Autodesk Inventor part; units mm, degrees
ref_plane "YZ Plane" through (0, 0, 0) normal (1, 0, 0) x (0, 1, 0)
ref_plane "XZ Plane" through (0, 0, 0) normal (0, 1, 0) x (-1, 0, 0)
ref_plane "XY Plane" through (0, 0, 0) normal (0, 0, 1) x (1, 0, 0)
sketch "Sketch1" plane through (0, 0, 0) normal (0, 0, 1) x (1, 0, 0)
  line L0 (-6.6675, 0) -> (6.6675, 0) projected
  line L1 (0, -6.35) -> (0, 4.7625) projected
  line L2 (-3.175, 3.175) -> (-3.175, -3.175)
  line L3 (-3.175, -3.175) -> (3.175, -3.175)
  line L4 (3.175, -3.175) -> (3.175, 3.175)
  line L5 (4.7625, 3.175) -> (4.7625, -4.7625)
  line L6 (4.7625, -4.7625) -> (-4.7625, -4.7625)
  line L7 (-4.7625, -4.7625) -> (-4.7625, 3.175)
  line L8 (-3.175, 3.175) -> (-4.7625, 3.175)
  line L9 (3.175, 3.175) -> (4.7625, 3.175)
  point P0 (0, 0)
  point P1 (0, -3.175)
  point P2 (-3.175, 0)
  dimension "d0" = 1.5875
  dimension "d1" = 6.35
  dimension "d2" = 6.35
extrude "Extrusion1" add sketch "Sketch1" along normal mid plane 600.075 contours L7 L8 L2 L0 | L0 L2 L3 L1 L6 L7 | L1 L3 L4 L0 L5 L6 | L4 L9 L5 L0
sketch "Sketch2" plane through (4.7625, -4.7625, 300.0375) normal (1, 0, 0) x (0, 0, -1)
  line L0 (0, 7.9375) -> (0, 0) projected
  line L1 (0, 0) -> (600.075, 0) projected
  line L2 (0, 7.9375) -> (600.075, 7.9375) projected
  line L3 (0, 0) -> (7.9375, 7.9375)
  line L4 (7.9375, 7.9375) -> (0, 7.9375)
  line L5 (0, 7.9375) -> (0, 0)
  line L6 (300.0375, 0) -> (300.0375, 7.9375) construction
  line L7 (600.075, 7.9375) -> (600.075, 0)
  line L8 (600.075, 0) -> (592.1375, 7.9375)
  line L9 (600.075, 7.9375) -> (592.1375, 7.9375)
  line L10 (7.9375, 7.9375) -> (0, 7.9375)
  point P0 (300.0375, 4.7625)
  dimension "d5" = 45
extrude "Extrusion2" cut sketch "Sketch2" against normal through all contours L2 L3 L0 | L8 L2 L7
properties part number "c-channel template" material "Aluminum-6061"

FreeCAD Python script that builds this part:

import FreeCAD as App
import Part
import Sketcher

V = App.Vector
Q = App.Units.Quantity

doc = App.newDocument("Part")
body = doc.addObject("PartDesign::Body", "Body")

# Sketch on XY plane
sketch1 = body.newObject("Sketcher::SketchObject", "Sketch")
sketch1.AttachmentSupport = (doc.getObject("XY_Plane"), [""])
sketch1.MapMode = "FlatFace"
sketch1.addGeometry(Part.LineSegment(V(-4.8, 3.2, 0), V(-4.8, -4.8, 0)), False)
sketch1.addGeometry(Part.LineSegment(V(-4.8, -4.8, 0), V(4.8, -4.8, 0)), False)
sketch1.addGeometry(Part.LineSegment(V(4.8, -4.8, 0), V(4.8, 3.2, 0)), False)
sketch1.addGeometry(Part.LineSegment(V(4.8, 3.2, 0), V(3.2, 3.2, 0)), False)
sketch1.addGeometry(Part.LineSegment(V(3.2, 3.2, 0), V(3.2, -3.2, 0)), False)
sketch1.addGeometry(Part.LineSegment(V(3.2, -3.2, 0), V(-3.2, -3.2, 0)), False)
sketch1.addGeometry(Part.LineSegment(V(-3.2, -3.2, 0), V(-3.2, 3.2, 0)), False)
sketch1.addGeometry(Part.LineSegment(V(-3.2, 3.2, 0), V(-4.8, 3.2, 0)), False)
sketch1.addConstraint(Sketcher.Constraint("Coincident", 0, 2, 1, 1))
sketch1.addConstraint(Sketcher.Constraint("Coincident", 1, 2, 2, 1))
sketch1.addConstraint(Sketcher.Constraint("Coincident", 2, 2, 3, 1))
sketch1.addConstraint(Sketcher.Constraint("Coincident", 3, 2, 4, 1))
sketch1.addConstraint(Sketcher.Constraint("Coincident", 4, 2, 5, 1))
sketch1.addConstraint(Sketcher.Constraint("Coincident", 5, 2, 6, 1))
sketch1.addConstraint(Sketcher.Constraint("Coincident", 6, 2, 7, 1))
sketch1.addConstraint(Sketcher.Constraint("Coincident", 7, 2, 0, 1))
sketch1.addConstraint(Sketcher.Constraint("Vertical", 0))
sketch1.addConstraint(Sketcher.Constraint("Horizontal", 1))
sketch1.addConstraint(Sketcher.Constraint("Vertical", 2))
sketch1.addConstraint(Sketcher.Constraint("Horizontal", 3))
sketch1.addConstraint(Sketcher.Constraint("Vertical", 4))
sketch1.addConstraint(Sketcher.Constraint("Horizontal", 5))
sketch1.addConstraint(Sketcher.Constraint("Vertical", 6))
sketch1.addConstraint(Sketcher.Constraint("Horizontal", 7))
sketch1.addConstraint(Sketcher.Constraint("Symmetric", 3, 2, 5, 2, -1, 1))
sketch1.addConstraint(Sketcher.Constraint("Symmetric", 2, 2, 7, 2, -2))
sketch1.addConstraint(Sketcher.Constraint("Equal", 5, 4))
sketch1.addConstraint(Sketcher.Constraint("DistanceX", 5, 2, 5, 1, Q("0.25 in")))
sketch1.addConstraint(Sketcher.Constraint("DistanceX", 3, 2, 3, 1, Q("0.0625 in")))
sketch1.addConstraint(Sketcher.Constraint("DistanceY", 1, 2, 4, 2, Q("0.0625 in")))
pad1 = body.newObject("PartDesign::Pad", "Pad")
pad1.Profile = sketch1
pad1.Length = Q("23.625 in")
pad1.Midplane = True

# Sketch on YZ plane
sketch2 = body.newObject("Sketcher::SketchObject", "Sketch001")
sketch2.AttachmentSupport = (doc.getObject("YZ_Plane"), [""])
sketch2.MapMode = "FlatFace"
sketch2.AttachmentOffset = App.Placement(V(0, 0, 0.1875 * 25.4), App.Rotation())
sketch2.addGeometry(Part.LineSegment(V(3, 292, 0), V(3, 300, 0)), False)
sketch2.addGeometry(Part.LineSegment(V(3, 300, 0), V(-5, 300, 0)), False)
sketch2.addGeometry(Part.LineSegment(V(-5, 300, 0), V(3, 292, 0)), False)
sketch2.addGeometry(Part.LineSegment(V(3, -292, 0), V(-5, -300, 0)), False)
sketch2.addGeometry(Part.LineSegment(V(-5, -300, 0), V(3, -300, 0)), False)
sketch2.addGeometry(Part.LineSegment(V(3, -300, 0), V(3, -292, 0)), False)
sketch2.addConstraint(Sketcher.Constraint("Coincident", 0, 2, 1, 1))
sketch2.addConstraint(Sketcher.Constraint("Coincident", 1, 2, 2, 1))
sketch2.addConstraint(Sketcher.Constraint("Coincident", 2, 2, 0, 1))
sketch2.addConstraint(Sketcher.Constraint("Coincident", 3, 2, 4, 1))
sketch2.addConstraint(Sketcher.Constraint("Coincident", 4, 2, 5, 1))
sketch2.addConstraint(Sketcher.Constraint("Coincident", 5, 2, 3, 1))
sketch2.addConstraint(Sketcher.Constraint("Vertical", 0))
sketch2.addConstraint(Sketcher.Constraint("Horizontal", 1))
sketch2.addConstraint(Sketcher.Constraint("Horizontal", 4))
sketch2.addConstraint(Sketcher.Constraint("Vertical", 5))
sketch2.addConstraint(Sketcher.Constraint("Symmetric", 1, 2, 3, 2, -1))
sketch2.addConstraint(Sketcher.Constraint("Symmetric", 2, 2, 5, 2, -1))
sketch2.addConstraint(Sketcher.Constraint("Perpendicular", 2, 3))
sketch2.addConstraint(Sketcher.Constraint("DistanceY", 5, 2, 2, 2, Q("23 in")))
sketch2.addConstraint(Sketcher.Constraint("DistanceX", 1, 2, 1, 1, Q("0.3125 in")))
sketch2.addConstraint(Sketcher.Constraint("DistanceX", -1, 1, 0, 2, Q("0.125 in")))
pocket1 = body.newObject("PartDesign::Pocket", "Pocket")
pocket1.Profile = sketch2
pocket1.Type = "ThroughAll"

doc.recompute()
